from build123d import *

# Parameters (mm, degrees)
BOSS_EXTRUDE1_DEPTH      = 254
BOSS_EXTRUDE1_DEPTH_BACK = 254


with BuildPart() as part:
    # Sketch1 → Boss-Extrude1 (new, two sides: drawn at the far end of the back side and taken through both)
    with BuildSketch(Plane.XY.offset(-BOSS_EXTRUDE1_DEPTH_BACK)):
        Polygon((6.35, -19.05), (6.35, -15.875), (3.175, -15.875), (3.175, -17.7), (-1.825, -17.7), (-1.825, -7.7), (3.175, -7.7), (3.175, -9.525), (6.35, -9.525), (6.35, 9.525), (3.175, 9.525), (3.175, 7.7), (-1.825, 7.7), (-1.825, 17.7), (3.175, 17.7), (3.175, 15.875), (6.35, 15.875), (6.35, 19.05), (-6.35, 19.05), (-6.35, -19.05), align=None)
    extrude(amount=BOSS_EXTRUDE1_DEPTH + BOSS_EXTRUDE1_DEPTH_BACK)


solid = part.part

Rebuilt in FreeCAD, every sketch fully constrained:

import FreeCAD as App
import Part
import Sketcher
from FreeCAD import Vector
Q = App.Units.Quantity


def add_polygon(sketch, points):
    """Adds a closed chain of lines whose ends are joined by coincident constraints."""
    first, n = sketch.GeometryCount, len(points)
    for a, b in zip(points, points[1:] + points[:1]):
        sketch.addGeometry(Part.LineSegment(App.Vector(*a, 0), App.Vector(*b, 0)), False)
    for i in range(n):
        sketch.addConstraint(Sketcher.Constraint("Coincident", first + i, 2, first + (i + 1) % n, 1))

doc = App.newDocument("Part")
params = doc.addObject("Spreadsheet::Sheet", "Params")
for row, (alias, value) in enumerate([
    ("sketch1_width", "0.5 in"),
    ("sketch1_height", "1.5 in"),
    ("sketch1_height2", "0.75 in"),
    ("pad1_length", "10 in"),
    ("pad1_length2", "10 in"),
], start=1):
    params.set(f"A{row}", alias)
    params.set(f"B{row}", "=" + value)
    params.setAlias(f"B{row}", alias)

body = doc.addObject("PartDesign::Body", "Body")

# Sketch on XY plane
sketch1 = doc.addObject("Sketcher::SketchObject", "Sketch")
body.addObject(sketch1)
sketch1.AttachmentSupport = (doc.XY_Plane, [""])
sketch1.MapMode = "FlatFace"
add_polygon(sketch1, [(6.3, -19.1), (6.3, -15.9), (3.2, -15.9), (3.2, -17.7), (-1.8, -17.7), (-1.8, -7.7), (3.2, -7.7), (3.2, -9.5), (6.3, -9.5), (6.3, 9.5), (3.2, 9.5), (3.2, 7.7), (-1.8, 7.7), (-1.8, 17.7), (3.2, 17.7), (3.2, 15.9), (6.3, 15.9), (6.3, 19.1), (-6.3, 19.1), (-6.3, -19.1)])  # lines 0-19
sketch1.addConstraint(Sketcher.Constraint("Vertical", 0))
sketch1.addConstraint(Sketcher.Constraint("Horizontal", 1))
sketch1.addConstraint(Sketcher.Constraint("Vertical", 2))
sketch1.addConstraint(Sketcher.Constraint("Horizontal", 3))
sketch1.addConstraint(Sketcher.Constraint("Vertical", 4))
sketch1.addConstraint(Sketcher.Constraint("Horizontal", 5))
sketch1.addConstraint(Sketcher.Constraint("Vertical", 6))
sketch1.addConstraint(Sketcher.Constraint("Horizontal", 7))
sketch1.addConstraint(Sketcher.Constraint("Vertical", 8))
sketch1.addConstraint(Sketcher.Constraint("Horizontal", 9))
sketch1.addConstraint(Sketcher.Constraint("Vertical", 10))
sketch1.addConstraint(Sketcher.Constraint("Horizontal", 11))
sketch1.addConstraint(Sketcher.Constraint("Vertical", 12))
sketch1.addConstraint(Sketcher.Constraint("Horizontal", 13))
sketch1.addConstraint(Sketcher.Constraint("Vertical", 14))
sketch1.addConstraint(Sketcher.Constraint("Horizontal", 15))
sketch1.addConstraint(Sketcher.Constraint("Vertical", 16))
sketch1.addConstraint(Sketcher.Constraint("Horizontal", 17))
sketch1.addConstraint(Sketcher.Constraint("Vertical", 18))
sketch1.addConstraint(Sketcher.Constraint("Horizontal", 19))
sketch1.addConstraint(Sketcher.Constraint("Symmetric", 16, 2, 18, 2, -1, 1))
sketch1.addConstraint(Sketcher.Constraint("Symmetric", 6, 2, 9, 2, -1))
sketch1.addConstraint(Sketcher.Constraint("Symmetric", 4, 2, 11, 2, -1))
sketch1.addConstraint(Sketcher.Constraint("Symmetric", 2, 2, 13, 2, -1))
sketch1.addConstraint(Sketcher.Constraint("Symmetric", 0, 2, 15, 2, -1))
sketch1.addConstraint(Sketcher.Constraint("Vertical", 2, 2, 5, 2))
sketch1.addConstraint(Sketcher.Constraint("Vertical", 0, 2, 7, 2))
sketch1.addConstraint(Sketcher.Constraint("Equal", 15, 0))
sketch1.addConstraint(Sketcher.Constraint("Equal", 2, 6))
sketch1.addConstraint(Sketcher.Constraint("DistanceX", 17, 2, 17, 1, Q("0.5 in")))
sketch1.addConstraint(Sketcher.Constraint("DistanceY", 18, 2, 18, 1, Q("1.5 in")))
sketch1.addConstraint(Sketcher.Constraint("DistanceY", 0, 2, 8, 2, Q("1 in")))
sketch1.addConstraint(Sketcher.Constraint("DistanceY", 8, 1, 8, 2, Q("0.75 in")))
sketch1.addConstraint(Sketcher.Constraint("DistanceX", 3, 2, 3, 1, 5.0))
sketch1.addConstraint(Sketcher.Constraint("DistanceY", 2, 2, 2, 1, 1.825))
sketch1.setExpression("Constraints[49]", "Params.sketch1_width")
sketch1.setExpression("Constraints[50]", "Params.sketch1_height")
sketch1.setExpression("Constraints[52]", "Params.sketch1_height2")
pad1 = doc.addObject("PartDesign::Pad", "Pad")
body.addObject(pad1)
pad1.Profile = sketch1
pad1.Type = "TwoLengths"
pad1.setExpression("Length", "Params.pad1_length")
pad1.setExpression("Length2", "Params.pad1_length2")

doc.recompute()
